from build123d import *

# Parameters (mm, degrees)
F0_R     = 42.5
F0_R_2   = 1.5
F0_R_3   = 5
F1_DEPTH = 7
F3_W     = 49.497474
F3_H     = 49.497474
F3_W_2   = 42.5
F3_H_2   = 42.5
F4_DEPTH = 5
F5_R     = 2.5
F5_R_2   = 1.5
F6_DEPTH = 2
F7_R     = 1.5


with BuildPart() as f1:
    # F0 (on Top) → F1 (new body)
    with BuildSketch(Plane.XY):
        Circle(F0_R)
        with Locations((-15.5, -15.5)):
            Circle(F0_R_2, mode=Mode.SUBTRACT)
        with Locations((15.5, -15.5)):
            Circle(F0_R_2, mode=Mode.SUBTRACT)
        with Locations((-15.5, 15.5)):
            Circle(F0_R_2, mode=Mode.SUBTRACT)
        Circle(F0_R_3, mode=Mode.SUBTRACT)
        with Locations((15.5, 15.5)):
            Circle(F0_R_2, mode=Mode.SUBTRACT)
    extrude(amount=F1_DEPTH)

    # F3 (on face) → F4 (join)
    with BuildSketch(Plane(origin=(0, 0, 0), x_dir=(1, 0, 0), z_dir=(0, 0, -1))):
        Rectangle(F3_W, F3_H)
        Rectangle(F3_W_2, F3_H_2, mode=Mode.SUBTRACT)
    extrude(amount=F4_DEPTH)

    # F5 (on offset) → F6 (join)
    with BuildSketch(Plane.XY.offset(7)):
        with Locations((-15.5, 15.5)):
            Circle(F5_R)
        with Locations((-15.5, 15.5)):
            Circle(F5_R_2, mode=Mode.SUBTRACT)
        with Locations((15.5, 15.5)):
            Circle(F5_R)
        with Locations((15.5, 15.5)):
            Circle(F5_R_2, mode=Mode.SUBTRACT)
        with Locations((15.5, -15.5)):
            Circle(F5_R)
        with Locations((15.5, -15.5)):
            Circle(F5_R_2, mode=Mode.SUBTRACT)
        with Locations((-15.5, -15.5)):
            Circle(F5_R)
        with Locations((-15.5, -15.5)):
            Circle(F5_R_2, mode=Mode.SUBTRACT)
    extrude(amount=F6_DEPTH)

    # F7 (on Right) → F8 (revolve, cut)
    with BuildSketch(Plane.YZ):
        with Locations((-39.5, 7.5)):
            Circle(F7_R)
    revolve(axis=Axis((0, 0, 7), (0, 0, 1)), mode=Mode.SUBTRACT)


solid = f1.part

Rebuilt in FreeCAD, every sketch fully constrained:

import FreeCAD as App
import Part
import Sketcher
from FreeCAD import Vector

doc = App.newDocument("Part")
body = doc.addObject("PartDesign::Body", "Body")

# Sketch on XY plane
sketch1 = doc.addObject("Sketcher::SketchObject", "Sketch")
body.addObject(sketch1)
sketch1.AttachmentSupport = (doc.XY_Plane, [""])
sketch1.MapMode = "FlatFace"
sketch1.addGeometry(Part.Circle(Vector(0, 0, 0), Vector(0, 0, 1), 42.5), False)
sketch1.addGeometry(Part.Circle(Vector(-15.5, -15.5, 0), Vector(0, 0, 1), 1.5), False)
sketch1.addGeometry(Part.Circle(Vector(15.5, -15.5, 0), Vector(0, 0, 1), 1.5), False)
sketch1.addGeometry(Part.Circle(Vector(-15.5, 15.5, 0), Vector(0, 0, 1), 1.5), False)
sketch1.addGeometry(Part.Circle(Vector(0, 0, 0), Vector(0, 0, 1), 5), False)
sketch1.addGeometry(Part.Circle(Vector(15.5, 15.5, 0), Vector(0, 0, 1), 1.5), False)
sketch1.addConstraint(Sketcher.Constraint("Coincident", 0, 3, -1, 1))
sketch1.addConstraint(Sketcher.Constraint("Coincident", 4, 3, -1, 1))
sketch1.addConstraint(Sketcher.Constraint("Equal", 1, 2))
sketch1.addConstraint(Sketcher.Constraint("Equal", 2, 3))
sketch1.addConstraint(Sketcher.Constraint("Equal", 3, 5))
sketch1.addConstraint(Sketcher.Constraint("Symmetric", 2, 3, 3, 3, -1, 1))
sketch1.addConstraint(Sketcher.Constraint("Symmetric", 1, 3, 5, 3, -1, 1))
sketch1.addConstraint(Sketcher.Constraint("Symmetric", 1, 3, 2, 3, -2))
sketch1.addConstraint(Sketcher.Constraint("Diameter", 0, 85.0))
sketch1.addConstraint(Sketcher.Constraint("Diameter", 1, 3.0))
sketch1.addConstraint(Sketcher.Constraint("Diameter", 4, 10.0))
sketch1.addConstraint(Sketcher.Constraint("DistanceX", 1, 3, 2, 3, 31.0))
sketch1.addConstraint(Sketcher.Constraint("DistanceY", 1, 3, 3, 3, 31.0))
pad1 = doc.addObject("PartDesign::Pad", "Pad")
body.addObject(pad1)
pad1.Profile = sketch1
pad1.Length = 7

# Sketch on XY plane
sketch2 = doc.addObject("Sketcher::SketchObject", "Sketch001")
body.addObject(sketch2)
sketch2.AttachmentSupport = (doc.XY_Plane, [""])
sketch2.MapMode = "FlatFace"
sketch2.addGeometry(Part.LineSegment(Vector(-24.748737, -24.748737, 0), Vector(-24.748737, 24.748737, 0)), False)
sketch2.addGeometry(Part.LineSegment(Vector(-24.748737, 24.748737, 0), Vector(24.748737, 24.748737, 0)), False)
sketch2.addGeometry(Part.LineSegment(Vector(24.748737, 24.748737, 0), Vector(24.748737, -24.748737, 0)), False)
sketch2.addGeometry(Part.LineSegment(Vector(24.748737, -24.748737, 0), Vector(-24.748737, -24.748737, 0)), False)
sketch2.addGeometry(Part.LineSegment(Vector(21.25, 21.25, 0), Vector(-21.25, 21.25, 0)), False)
sketch2.addGeometry(Part.LineSegment(Vector(-21.25, 21.25, 0), Vector(-21.25, -21.25, 0)), False)
sketch2.addGeometry(Part.LineSegment(Vector(-21.25, -21.25, 0), Vector(21.25, -21.25, 0)), False)
sketch2.addGeometry(Part.LineSegment(Vector(21.25, -21.25, 0), Vector(21.25, 21.25, 0)), False)
sketch2.addConstraint(Sketcher.Constraint("Coincident", 0, 2, 1, 1))
sketch2.addConstraint(Sketcher.Constraint("Coincident", 1, 2, 2, 1))
sketch2.addConstraint(Sketcher.Constraint("Coincident", 2, 2, 3, 1))
sketch2.addConstraint(Sketcher.Constraint("Coincident", 3, 2, 0, 1))
sketch2.addConstraint(Sketcher.Constraint("Coincident", 4, 2, 5, 1))
sketch2.addConstraint(Sketcher.Constraint("Coincident", 5, 2, 6, 1))
sketch2.addConstraint(Sketcher.Constraint("Coincident", 6, 2, 7, 1))
sketch2.addConstraint(Sketcher.Constraint("Coincident", 7, 2, 4, 1))
sketch2.addConstraint(Sketcher.Constraint("Vertical", 0))
sketch2.addConstraint(Sketcher.Constraint("Horizontal", 1))
sketch2.addConstraint(Sketcher.Constraint("Vertical", 2))
sketch2.addConstraint(Sketcher.Constraint("Horizontal", 3))
sketch2.addConstraint(Sketcher.Constraint("Horizontal", 4))
sketch2.addConstraint(Sketcher.Constraint("Vertical", 5))
sketch2.addConstraint(Sketcher.Constraint("Horizontal", 6))
sketch2.addConstraint(Sketcher.Constraint("Vertical", 7))
sketch2.addConstraint(Sketcher.Constraint("Symmetric", 0, 2, 2, 2, -1, 1))
sketch2.addConstraint(Sketcher.Constraint("Symmetric", 4, 2, 6, 2, -1, 1))
sketch2.addConstraint(Sketcher.Constraint("Equal", 3, 0))
sketch2.addConstraint(Sketcher.Constraint("Equal", 6, 5))
sketch2.addConstraint(Sketcher.Constraint("DistanceX", 4, 2, 4, 1, 42.5))
sketch2.addConstraint(Sketcher.Constraint("DistanceX", 1, 1, 1, 2, 49.497474))
pad2 = doc.addObject("PartDesign::Pad", "Pad001")
body.addObject(pad2)
pad2.Profile = sketch2
pad2.Length = 5
pad2.Reversed = True

# Sketch on XY plane
sketch3 = doc.addObject("Sketcher::SketchObject", "Sketch002")
body.addObject(sketch3)
sketch3.AttachmentSupport = (doc.XY_Plane, [""])
sketch3.MapMode = "FlatFace"
sketch3.AttachmentOffset = App.Placement(Vector(0, 0, 7), App.Rotation())
sketch3.addGeometry(Part.Circle(Vector(-15.5, 15.5, 0), Vector(0, 0, 1), 2.5), False)
sketch3.addGeometry(Part.Circle(Vector(-15.5, 15.5, 0), Vector(0, 0, 1), 1.5), False)
sketch3.addGeometry(Part.Circle(Vector(15.5, 15.5, 0), Vector(0, 0, 1), 2.5), False)
sketch3.addGeometry(Part.Circle(Vector(15.5, 15.5, 0), Vector(0, 0, 1), 1.5), False)
sketch3.addGeometry(Part.Circle(Vector(15.5, -15.5, 0), Vector(0, 0, 1), 2.5), False)
sketch3.addGeometry(Part.Circle(Vector(15.5, -15.5, 0), Vector(0, 0, 1), 1.5), False)
sketch3.addGeometry(Part.Circle(Vector(-15.5, -15.5, 0), Vector(0, 0, 1), 2.5), False)
sketch3.addGeometry(Part.Circle(Vector(-15.5, -15.5, 0), Vector(0, 0, 1), 1.5), False)
sketch3.addConstraint(Sketcher.Constraint("Coincident", 1, 3, 0, 3))
sketch3.addConstraint(Sketcher.Constraint("Coincident", 3, 3, 2, 3))
sketch3.addConstraint(Sketcher.Constraint("Coincident", 5, 3, 4, 3))
sketch3.addConstraint(Sketcher.Constraint("Coincident", 7, 3, 6, 3))
sketch3.addConstraint(Sketcher.Constraint("Equal", 0, 2))
sketch3.addConstraint(Sketcher.Constraint("Equal", 1, 3))
sketch3.addConstraint(Sketcher.Constraint("Equal", 2, 4))
sketch3.addConstraint(Sketcher.Constraint("Equal", 3, 5))
sketch3.addConstraint(Sketcher.Constraint("Equal", 4, 6))
sketch3.addConstraint(Sketcher.Constraint("Equal", 5, 7))
sketch3.addConstraint(Sketcher.Constraint("Symmetric", 0, 3, 4, 3, -1, 1))
sketch3.addConstraint(Sketcher.Constraint("Symmetric", 2, 3, 6, 3, -1, 1))
sketch3.addConstraint(Sketcher.Constraint("Symmetric", 0, 3, 2, 3, -2))
sketch3.addConstraint(Sketcher.Constraint("Diameter", 0, 5.0))
sketch3.addConstraint(Sketcher.Constraint("Diameter", 1, 3.0))
sketch3.addConstraint(Sketcher.Constraint("DistanceX", 0, 3, 2, 3, 31.0))
sketch3.addConstraint(Sketcher.Constraint("DistanceY", 4, 3, 2, 3, 31.0))
pad3 = doc.addObject("PartDesign::Pad", "Pad002")
body.addObject(pad3)
pad3.Profile = sketch3
pad3.Length = 2

# Sketch on YZ plane
sketch4 = doc.addObject("Sketcher::SketchObject", "Sketch003")
body.addObject(sketch4)
sketch4.AttachmentSupport = (doc.YZ_Plane, [""])
sketch4.MapMode = "FlatFace"
sketch4.addGeometry(Part.Circle(Vector(-39.5, 7.5, 0), Vector(0, 0, 1), 1.5), False)
sketch4.addConstraint(Sketcher.Constraint("Diameter", 0, 3.0))
sketch4.addConstraint(Sketcher.Constraint("DistanceX", 0, 3, -1, 1, 39.5))
sketch4.addConstraint(Sketcher.Constraint("DistanceY", -1, 1, 0, 3, 7.5))
groove = doc.addObject("PartDesign::Groove", "Groove")
body.addObject(groove)
groove.Profile = sketch4
groove.ReferenceAxis = (sketch4, ["V_Axis"])
groove.Angle = 360

doc.recompute()
